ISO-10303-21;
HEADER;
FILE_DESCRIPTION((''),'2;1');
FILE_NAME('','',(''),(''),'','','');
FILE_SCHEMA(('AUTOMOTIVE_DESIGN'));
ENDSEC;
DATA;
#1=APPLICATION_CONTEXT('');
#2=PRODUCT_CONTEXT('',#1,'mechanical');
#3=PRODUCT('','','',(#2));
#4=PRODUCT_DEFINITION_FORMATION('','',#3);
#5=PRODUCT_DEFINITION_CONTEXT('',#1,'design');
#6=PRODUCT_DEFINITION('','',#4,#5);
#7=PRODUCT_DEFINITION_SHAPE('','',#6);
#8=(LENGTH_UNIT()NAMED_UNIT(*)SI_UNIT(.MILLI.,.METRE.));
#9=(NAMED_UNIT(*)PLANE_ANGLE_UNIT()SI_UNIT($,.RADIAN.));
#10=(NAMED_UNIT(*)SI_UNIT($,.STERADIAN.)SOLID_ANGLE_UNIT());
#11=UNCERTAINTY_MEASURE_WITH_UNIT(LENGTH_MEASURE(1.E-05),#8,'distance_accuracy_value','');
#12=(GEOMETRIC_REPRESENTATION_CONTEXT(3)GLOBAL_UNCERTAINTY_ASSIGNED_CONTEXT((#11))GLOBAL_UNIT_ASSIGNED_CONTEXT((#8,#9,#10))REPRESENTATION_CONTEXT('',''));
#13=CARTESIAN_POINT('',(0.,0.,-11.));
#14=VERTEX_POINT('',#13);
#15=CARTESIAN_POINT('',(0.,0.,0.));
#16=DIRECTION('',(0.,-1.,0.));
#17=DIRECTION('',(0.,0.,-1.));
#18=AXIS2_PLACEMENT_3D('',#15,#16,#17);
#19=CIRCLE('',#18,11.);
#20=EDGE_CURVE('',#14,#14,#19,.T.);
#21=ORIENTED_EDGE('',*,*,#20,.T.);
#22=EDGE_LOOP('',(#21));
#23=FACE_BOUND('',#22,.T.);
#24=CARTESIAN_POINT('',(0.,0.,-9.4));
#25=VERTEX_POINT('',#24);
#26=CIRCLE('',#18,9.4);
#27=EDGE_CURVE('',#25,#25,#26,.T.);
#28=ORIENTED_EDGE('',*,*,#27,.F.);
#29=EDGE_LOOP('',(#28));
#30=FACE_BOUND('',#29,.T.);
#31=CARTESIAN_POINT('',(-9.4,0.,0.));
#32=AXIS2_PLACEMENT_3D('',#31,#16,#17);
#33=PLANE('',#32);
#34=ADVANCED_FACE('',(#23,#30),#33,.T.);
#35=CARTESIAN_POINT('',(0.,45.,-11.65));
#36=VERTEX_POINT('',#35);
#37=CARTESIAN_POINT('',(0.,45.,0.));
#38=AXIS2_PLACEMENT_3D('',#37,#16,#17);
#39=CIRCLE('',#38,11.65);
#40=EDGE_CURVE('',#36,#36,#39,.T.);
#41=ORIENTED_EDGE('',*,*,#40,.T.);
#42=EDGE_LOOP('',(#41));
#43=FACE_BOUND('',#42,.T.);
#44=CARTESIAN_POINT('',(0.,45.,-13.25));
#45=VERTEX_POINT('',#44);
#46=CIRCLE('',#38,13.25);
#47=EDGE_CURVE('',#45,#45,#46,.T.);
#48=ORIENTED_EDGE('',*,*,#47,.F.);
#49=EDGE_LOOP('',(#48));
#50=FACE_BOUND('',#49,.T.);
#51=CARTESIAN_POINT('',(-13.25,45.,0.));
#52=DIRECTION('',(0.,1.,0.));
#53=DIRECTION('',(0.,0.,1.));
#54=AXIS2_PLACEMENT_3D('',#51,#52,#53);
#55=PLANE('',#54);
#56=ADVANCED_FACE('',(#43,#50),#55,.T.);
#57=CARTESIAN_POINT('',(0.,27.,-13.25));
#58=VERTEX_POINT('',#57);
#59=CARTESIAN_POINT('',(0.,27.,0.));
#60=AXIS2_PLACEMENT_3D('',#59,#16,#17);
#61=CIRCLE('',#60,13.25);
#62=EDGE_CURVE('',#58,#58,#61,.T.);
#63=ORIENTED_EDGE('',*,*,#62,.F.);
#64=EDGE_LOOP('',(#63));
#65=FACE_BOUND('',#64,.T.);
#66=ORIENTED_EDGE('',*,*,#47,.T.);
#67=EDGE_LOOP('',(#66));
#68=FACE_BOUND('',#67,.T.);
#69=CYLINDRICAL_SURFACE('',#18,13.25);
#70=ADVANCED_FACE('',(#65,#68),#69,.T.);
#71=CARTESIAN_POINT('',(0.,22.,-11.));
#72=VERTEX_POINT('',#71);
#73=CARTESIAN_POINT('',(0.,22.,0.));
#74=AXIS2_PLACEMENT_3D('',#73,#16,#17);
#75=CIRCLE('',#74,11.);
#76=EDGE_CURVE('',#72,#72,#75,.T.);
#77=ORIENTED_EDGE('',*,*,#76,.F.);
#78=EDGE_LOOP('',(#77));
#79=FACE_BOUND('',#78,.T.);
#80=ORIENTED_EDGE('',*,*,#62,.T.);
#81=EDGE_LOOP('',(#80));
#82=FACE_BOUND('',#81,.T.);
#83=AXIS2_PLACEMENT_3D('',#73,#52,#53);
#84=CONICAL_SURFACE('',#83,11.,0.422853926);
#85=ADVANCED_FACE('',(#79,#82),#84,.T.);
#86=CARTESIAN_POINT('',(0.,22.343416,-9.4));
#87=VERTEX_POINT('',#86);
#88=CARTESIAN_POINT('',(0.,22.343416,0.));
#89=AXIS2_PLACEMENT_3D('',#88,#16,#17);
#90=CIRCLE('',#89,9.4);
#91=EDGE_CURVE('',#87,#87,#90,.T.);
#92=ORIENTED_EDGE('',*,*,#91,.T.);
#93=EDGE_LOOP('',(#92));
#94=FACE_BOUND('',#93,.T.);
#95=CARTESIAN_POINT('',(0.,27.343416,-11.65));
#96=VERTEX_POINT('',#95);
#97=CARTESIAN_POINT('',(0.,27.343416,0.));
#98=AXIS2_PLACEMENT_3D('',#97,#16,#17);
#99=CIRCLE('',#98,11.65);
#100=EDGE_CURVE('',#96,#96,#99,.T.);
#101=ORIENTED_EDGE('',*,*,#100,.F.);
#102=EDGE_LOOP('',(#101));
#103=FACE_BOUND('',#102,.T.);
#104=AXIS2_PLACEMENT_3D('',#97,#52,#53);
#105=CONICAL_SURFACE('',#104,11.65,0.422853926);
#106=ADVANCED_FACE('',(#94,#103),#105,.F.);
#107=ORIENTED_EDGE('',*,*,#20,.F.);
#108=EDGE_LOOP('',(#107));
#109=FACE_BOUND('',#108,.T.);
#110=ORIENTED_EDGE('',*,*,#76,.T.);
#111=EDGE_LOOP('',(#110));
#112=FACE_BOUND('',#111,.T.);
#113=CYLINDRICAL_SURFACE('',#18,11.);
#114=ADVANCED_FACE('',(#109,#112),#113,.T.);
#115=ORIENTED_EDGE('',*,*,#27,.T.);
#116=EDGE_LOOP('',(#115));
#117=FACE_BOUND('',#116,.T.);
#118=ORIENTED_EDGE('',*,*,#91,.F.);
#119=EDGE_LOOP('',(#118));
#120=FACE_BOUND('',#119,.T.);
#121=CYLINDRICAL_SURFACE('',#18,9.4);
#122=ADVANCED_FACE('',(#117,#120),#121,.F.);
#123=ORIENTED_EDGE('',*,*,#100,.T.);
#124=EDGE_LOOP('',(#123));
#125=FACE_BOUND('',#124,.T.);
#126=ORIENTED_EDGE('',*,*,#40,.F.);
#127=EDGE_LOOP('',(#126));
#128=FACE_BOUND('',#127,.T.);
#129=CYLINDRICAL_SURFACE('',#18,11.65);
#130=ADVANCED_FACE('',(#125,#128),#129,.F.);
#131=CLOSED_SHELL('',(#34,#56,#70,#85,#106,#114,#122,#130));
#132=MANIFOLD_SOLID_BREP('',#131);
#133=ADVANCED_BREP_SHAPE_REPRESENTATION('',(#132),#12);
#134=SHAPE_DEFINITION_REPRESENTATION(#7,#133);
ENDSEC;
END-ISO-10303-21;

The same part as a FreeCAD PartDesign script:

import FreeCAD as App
import Part
import Sketcher

V = App.Vector
Q = App.Units.Quantity

doc = App.newDocument("Part")
body = doc.addObject("PartDesign::Body", "Body")

# Sketch on XY plane
sketch1 = body.newObject("Sketcher::SketchObject", "Sketch")
sketch1.AttachmentSupport = (doc.getObject("XY_Plane"), [""])
sketch1.MapMode = "FlatFace"
sketch1.addGeometry([
    Part.LineSegment(V(-11, 0, 0), V(-9.4, 0, 0)),  # 0
    Part.LineSegment(V(-9.4, 0, 0), V(-9.4, 22.343416, 0)),  # 1
    Part.LineSegment(V(-9.4, 22.343416, 0), V(-11.65, 27.343416, 0)),  # 2
    Part.LineSegment(V(-11.65, 27.343416, 0), V(-11.65, 45, 0)),  # 3
    Part.LineSegment(V(-11.65, 45, 0), V(-13.25, 45, 0)),  # 4
    Part.LineSegment(V(-13.25, 45, 0), V(-13.25, 27, 0)),  # 5
    Part.LineSegment(V(-13.25, 27, 0), V(-11, 22, 0)),  # 6
    Part.LineSegment(V(-11, 22, 0), V(-11, 0, 0)),  # 7
], False)
sketch1.addConstraint([
    Sketcher.Constraint("Coincident", 0, 2, 1, 1),
    Sketcher.Constraint("Coincident", 1, 2, 2, 1),
    Sketcher.Constraint("Coincident", 2, 2, 3, 1),
    Sketcher.Constraint("Coincident", 3, 2, 4, 1),
    Sketcher.Constraint("Coincident", 4, 2, 5, 1),
    Sketcher.Constraint("Coincident", 5, 2, 6, 1),
    Sketcher.Constraint("Coincident", 6, 2, 7, 1),
    Sketcher.Constraint("Coincident", 7, 2, 0, 1),
    Sketcher.Constraint("Horizontal", 0),
    Sketcher.Constraint("Vertical", 1),
    Sketcher.Constraint("Vertical", 3),
    Sketcher.Constraint("Horizontal", 4),
    Sketcher.Constraint("Vertical", 5),
    Sketcher.Constraint("Vertical", 7),
    Sketcher.Constraint("PointOnObject", 0, 2, -1),
    Sketcher.Constraint("Parallel", 2, 6),
    Sketcher.Constraint("Equal", 0, 4),
    Sketcher.Constraint("DistanceY", 5, 2, 5, 1, Q("18 mm")),
    Sketcher.Constraint("DistanceY", 7, 2, 7, 1, Q("22 mm")),
    Sketcher.Constraint("DistanceX", 0, 1, 0, 2, Q("1.6 mm")),
    Sketcher.Constraint("DistanceY", -1, 1, 3, 2, Q("45 mm")),
    Sketcher.Constraint("DistanceX", 6, 2, -1, 1, Q("11 mm")),
    Sketcher.Constraint("DistanceX", 2, 2, -1, 1, Q("11.65 mm")),
    Sketcher.Constraint("DistanceY", 1, 1, 1, 2, Q("22.343416 mm")),
])
revolution = body.newObject("PartDesign::Revolution", "Revolution")
revolution.Profile = sketch1
revolution.ReferenceAxis = (sketch1, ["V_Axis"])
revolution.Angle = 360

doc.recompute()
